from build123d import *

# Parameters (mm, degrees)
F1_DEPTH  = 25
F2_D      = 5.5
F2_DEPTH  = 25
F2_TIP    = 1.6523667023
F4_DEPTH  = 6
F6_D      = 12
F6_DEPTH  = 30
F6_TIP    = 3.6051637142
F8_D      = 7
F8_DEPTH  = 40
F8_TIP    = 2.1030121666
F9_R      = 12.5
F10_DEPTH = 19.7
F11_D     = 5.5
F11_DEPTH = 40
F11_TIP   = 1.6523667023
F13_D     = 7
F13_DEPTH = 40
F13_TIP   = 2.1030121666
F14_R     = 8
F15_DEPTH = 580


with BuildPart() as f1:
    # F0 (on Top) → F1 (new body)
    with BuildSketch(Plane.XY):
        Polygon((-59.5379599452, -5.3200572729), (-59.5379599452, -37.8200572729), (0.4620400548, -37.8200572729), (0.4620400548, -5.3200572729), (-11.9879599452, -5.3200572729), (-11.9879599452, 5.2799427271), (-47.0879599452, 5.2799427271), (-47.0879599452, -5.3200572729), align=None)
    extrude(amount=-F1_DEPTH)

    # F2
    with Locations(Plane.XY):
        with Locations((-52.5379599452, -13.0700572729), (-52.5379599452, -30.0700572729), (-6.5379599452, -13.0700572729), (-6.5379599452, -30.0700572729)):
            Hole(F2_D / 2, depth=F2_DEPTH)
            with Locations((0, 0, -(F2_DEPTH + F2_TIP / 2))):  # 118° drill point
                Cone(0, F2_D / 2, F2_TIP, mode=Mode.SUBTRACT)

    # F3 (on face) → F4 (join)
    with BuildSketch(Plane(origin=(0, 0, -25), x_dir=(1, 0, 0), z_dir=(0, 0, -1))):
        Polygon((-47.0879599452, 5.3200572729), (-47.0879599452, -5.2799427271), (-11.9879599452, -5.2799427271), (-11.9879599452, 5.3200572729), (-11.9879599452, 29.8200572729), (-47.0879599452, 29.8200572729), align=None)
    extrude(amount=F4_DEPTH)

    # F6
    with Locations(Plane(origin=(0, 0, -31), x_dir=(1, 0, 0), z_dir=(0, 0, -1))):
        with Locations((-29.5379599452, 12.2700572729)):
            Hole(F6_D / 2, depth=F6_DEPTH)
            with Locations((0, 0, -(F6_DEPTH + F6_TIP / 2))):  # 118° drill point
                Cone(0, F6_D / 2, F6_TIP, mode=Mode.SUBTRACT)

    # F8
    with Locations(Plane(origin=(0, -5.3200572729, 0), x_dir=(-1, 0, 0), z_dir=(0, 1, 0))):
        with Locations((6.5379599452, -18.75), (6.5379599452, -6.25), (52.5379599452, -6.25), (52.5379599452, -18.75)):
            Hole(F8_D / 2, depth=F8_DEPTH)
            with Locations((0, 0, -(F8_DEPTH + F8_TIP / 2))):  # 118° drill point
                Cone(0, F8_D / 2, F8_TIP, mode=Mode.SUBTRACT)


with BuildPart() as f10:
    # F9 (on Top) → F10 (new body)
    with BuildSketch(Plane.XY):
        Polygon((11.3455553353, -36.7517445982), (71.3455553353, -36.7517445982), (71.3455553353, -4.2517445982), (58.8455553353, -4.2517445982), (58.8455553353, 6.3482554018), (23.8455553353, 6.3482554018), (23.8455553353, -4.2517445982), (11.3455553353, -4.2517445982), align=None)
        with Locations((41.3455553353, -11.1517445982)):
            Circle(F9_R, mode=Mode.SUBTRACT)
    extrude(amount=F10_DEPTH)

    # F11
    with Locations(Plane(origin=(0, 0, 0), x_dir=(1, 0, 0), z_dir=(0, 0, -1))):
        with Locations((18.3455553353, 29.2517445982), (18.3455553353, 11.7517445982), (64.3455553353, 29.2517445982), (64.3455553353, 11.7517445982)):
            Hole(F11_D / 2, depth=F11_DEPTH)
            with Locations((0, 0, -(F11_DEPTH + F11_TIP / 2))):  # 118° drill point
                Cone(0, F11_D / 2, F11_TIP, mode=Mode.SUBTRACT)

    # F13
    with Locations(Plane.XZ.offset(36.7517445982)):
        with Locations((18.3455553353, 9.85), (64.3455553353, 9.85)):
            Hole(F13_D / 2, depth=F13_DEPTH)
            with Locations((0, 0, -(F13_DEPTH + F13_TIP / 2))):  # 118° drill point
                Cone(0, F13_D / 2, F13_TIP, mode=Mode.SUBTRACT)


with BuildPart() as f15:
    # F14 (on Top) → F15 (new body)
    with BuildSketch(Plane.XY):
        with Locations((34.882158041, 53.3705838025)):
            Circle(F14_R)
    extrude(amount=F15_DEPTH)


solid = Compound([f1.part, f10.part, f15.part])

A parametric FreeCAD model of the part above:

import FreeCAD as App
import Part
import Sketcher

V = App.Vector
Q = App.Units.Quantity


def add_polygon(sketch, points):
    """Adds a closed chain of lines whose ends are joined by coincident constraints."""
    first, n = sketch.GeometryCount, len(points)
    for a, b in zip(points, points[1:] + points[:1]):
        sketch.addGeometry(Part.LineSegment(App.Vector(*a, 0), App.Vector(*b, 0)), False)
    for i in range(n):
        sketch.addConstraint(Sketcher.Constraint("Coincident", first + i, 2, first + (i + 1) % n, 1))

doc = App.newDocument("Part")
params = doc.addObject("Spreadsheet::Sheet", "Params")
for row, (alias, value) in enumerate([
    ("sketch1_width", "60 mm"),
    ("sketch1_width2", "35.1 mm"),
    ("sketch1_height", "32.5 mm"),
    ("sketch1_height2", "10.6 mm"),
    ("pad1_length", "25 mm"),
    ("sketch2_diameter", "5.5 mm"),
    ("hole_diameter", "5.5 mm"),
    ("hole_depth", "25 mm"),
    ("sketch3_width", "35.1 mm"),
    ("pad2_length", "6 mm"),
    ("sketch4_diameter", "12 mm"),
    ("hole2_diameter", "12 mm"),
    ("hole2_depth", "30 mm"),
    ("sketch5_diameter", "7 mm"),
    ("hole3_diameter", "7 mm"),
    ("hole3_depth", "40 mm"),
    ("sketch6_diameter", "25 mm"),
    ("sketch6_width", "60 mm"),
    ("sketch6_width2", "35 mm"),
    ("sketch6_height", "32.5 mm"),
    ("sketch6_height2", "10.6 mm"),
    ("pad3_length", "19.7 mm"),
    ("sketch7_diameter", "5.5 mm"),
    ("hole4_diameter", "5.5 mm"),
    ("hole4_depth", "40 mm"),
    ("sketch8_diameter", "7 mm"),
    ("hole5_diameter", "7 mm"),
    ("hole5_depth", "40 mm"),
    ("sketch9_diameter", "16 mm"),
    ("pad4_length", "580 mm"),
], start=1):
    params.set(f"A{row}", alias)
    params.set(f"B{row}", "=" + value)
    params.setAlias(f"B{row}", alias)

body = doc.addObject("PartDesign::Body", "Body")

# Sketch on XY plane
sketch1 = body.newObject("Sketcher::SketchObject", "Sketch")
sketch1.AttachmentSupport = (doc.getObject("XY_Plane"), [""])
sketch1.MapMode = "FlatFace"
add_polygon(sketch1, [(-60, -5), (-60, -38), (0, -38), (0, -5), (-12, -5), (-12, 5), (-47, 5), (-47, -5)])  # lines 0-7
sketch1.addConstraint([
    Sketcher.Constraint("Vertical", 0),
    Sketcher.Constraint("Horizontal", 1),
    Sketcher.Constraint("Vertical", 2),
    Sketcher.Constraint("Horizontal", 3),
    Sketcher.Constraint("Vertical", 4),
    Sketcher.Constraint("Horizontal", 5),
    Sketcher.Constraint("Vertical", 6),
    Sketcher.Constraint("Horizontal", 7),
    Sketcher.Constraint("Horizontal", 3, 2, 6, 2),
    Sketcher.Constraint("Equal", 3, 7),
    Sketcher.Constraint("DistanceX", 1, 1, 1, 2, Q("60 mm")),
    Sketcher.Constraint("DistanceX", 5, 2, 5, 1, Q("35.1 mm")),
    Sketcher.Constraint("DistanceY", 0, 2, 0, 1, Q("32.5 mm")),
    Sketcher.Constraint("DistanceY", 4, 1, 4, 2, Q("10.6 mm")),
    Sketcher.Constraint("DistanceX", 0, 2, -1, 1, Q("59.53796 mm")),
    Sketcher.Constraint("DistanceY", 0, 2, -1, 1, Q("37.820057 mm")),
])
sketch1.setExpression("Constraints[18]", "Params.sketch1_width")
sketch1.setExpression("Constraints[19]", "Params.sketch1_width2")
sketch1.setExpression("Constraints[20]", "Params.sketch1_height")
sketch1.setExpression("Constraints[21]", "Params.sketch1_height2")
pad1 = body.newObject("PartDesign::Pad", "Pad")
pad1.Profile = sketch1
pad1.setExpression("Length", "Params.pad1_length")
pad1.Reversed = True

# Sketch on XY plane
sketch2 = body.newObject("Sketcher::SketchObject", "Sketch001")
sketch2.AttachmentSupport = (doc.getObject("XY_Plane"), [""])
sketch2.MapMode = "FlatFace"
sketch2.addGeometry([
    Part.Circle(V(-52.5, -13.1, 0), V(0, 0, 1), 2.8),
    Part.Circle(V(-52.5, -30.1, 0), V(0, 0, 1), 2.8),
    Part.Circle(V(-6.5, -13.1, 0), V(0, 0, 1), 2.8),
    Part.Circle(V(-6.5, -30.1, 0), V(0, 0, 1), 2.8),
], False)
sketch2.addConstraint([
    Sketcher.Constraint("Equal", 0, 1),
    Sketcher.Constraint("Equal", 1, 2),
    Sketcher.Constraint("Equal", 2, 3),
    Sketcher.Constraint("Horizontal", 0, 3, 2, 3),
    Sketcher.Constraint("Horizontal", 1, 3, 3, 3),
    Sketcher.Constraint("Vertical", 0, 3, 1, 3),
    Sketcher.Constraint("Vertical", 2, 3, 3, 3),
    Sketcher.Constraint("Diameter", 0, Q("5.5 mm")),
    Sketcher.Constraint("DistanceY", 1, 3, 0, 3, Q("17 mm")),
    Sketcher.Constraint("DistanceX", 0, 3, 2, 3, Q("46 mm")),
    Sketcher.Constraint("DistanceX", 0, 3, -1, 1, Q("52.53796 mm")),
    Sketcher.Constraint("DistanceY", 0, 3, -1, 1, Q("13.070057 mm")),
])
sketch2.setExpression("Constraints[7]", "Params.sketch2_diameter")
doc.recompute()
hole = body.newObject("PartDesign::Hole", "Hole")
hole.Profile = sketch2
hole.ThreadType = "None"
hole.setExpression("Diameter", "Params.hole_diameter")
hole.DepthType = "Dimension"
hole.setExpression("Depth", "Params.hole_depth")
hole.DrillPoint = "Angled"
hole.DrillPointAngle = 118

# Sketch on XY plane
sketch3 = body.newObject("Sketcher::SketchObject", "Sketch002")
sketch3.AttachmentSupport = (doc.getObject("XY_Plane"), [""])
sketch3.MapMode = "FlatFace"
sketch3.AttachmentOffset = App.Placement(V(0, 0, -25), App.Rotation())
add_polygon(sketch3, [(-47, 5), (-12, 5), (-12, -30), (-47, -30)])  # lines 0-3
sketch3.addConstraint([
    Sketcher.Constraint("Horizontal", 0),
    Sketcher.Constraint("Vertical", 1),
    Sketcher.Constraint("Horizontal", 2),
    Sketcher.Constraint("Vertical", 3),
    Sketcher.Constraint("Equal", 2, 1),
    Sketcher.Constraint("DistanceX", 0, 1, 0, 2, Q("35.1 mm")),
    Sketcher.Constraint("DistanceX", 0, 2, -1, 1, Q("11.98796 mm")),
    Sketcher.Constraint("DistanceY", -1, 1, 0, 2, Q("5.279943 mm")),
])
sketch3.setExpression("Constraints[9]", "Params.sketch3_width")
pad2 = body.newObject("PartDesign::Pad", "Pad001")
pad2.Profile = sketch3
pad2.setExpression("Length", "Params.pad2_length")
pad2.Reversed = True

# Sketch on XY plane
sketch4 = body.newObject("Sketcher::SketchObject", "Sketch003")
sketch4.AttachmentSupport = (doc.getObject("XY_Plane"), [""])
sketch4.MapMode = "FlatFace"
sketch4.AttachmentOffset = App.Placement(V(0, 0, -31), App.Rotation())
sketch4.addGeometry(Part.Circle(V(-30, -12, 0), V(0, 0, 1), 6), False)
sketch4.addConstraint([
    Sketcher.Constraint("Diameter", 0, Q("12 mm")),
    Sketcher.Constraint("DistanceX", 0, 3, -1, 1, Q("29.53796 mm")),
    Sketcher.Constraint("DistanceY", 0, 3, -1, 1, Q("12.270057 mm")),
])
sketch4.setExpression("Constraints[0]", "Params.sketch4_diameter")
doc.recompute()
hole2 = body.newObject("PartDesign::Hole", "Hole001")
hole2.Profile = sketch4
hole2.ThreadType = "None"
hole2.setExpression("Diameter", "Params.hole2_diameter")
hole2.DepthType = "Dimension"
hole2.setExpression("Depth", "Params.hole2_depth")
hole2.DrillPoint = "Angled"
hole2.DrillPointAngle = 118
hole2.Reversed = True

# Sketch on XZ plane
sketch5 = body.newObject("Sketcher::SketchObject", "Sketch004")
sketch5.AttachmentSupport = (doc.getObject("XZ_Plane"), [""])
sketch5.MapMode = "FlatFace"
sketch5.AttachmentOffset = App.Placement(V(0, 0, 5.320057), App.Rotation())
sketch5.addGeometry([
    Part.Circle(V(-6.5, -18.8, 0), V(0, 0, 1), 3.5),
    Part.Circle(V(-6.5, -6.2, 0), V(0, 0, 1), 3.5),
    Part.Circle(V(-52.5, -6.2, 0), V(0, 0, 1), 3.5),
    Part.Circle(V(-52.5, -18.8, 0), V(0, 0, 1), 3.5),
], False)
sketch5.addConstraint([
    Sketcher.Constraint("Equal", 0, 1),
    Sketcher.Constraint("Equal", 1, 2),
    Sketcher.Constraint("Equal", 2, 3),
    Sketcher.Constraint("Horizontal", 1, 3, 2, 3),
    Sketcher.Constraint("Horizontal", 0, 3, 3, 3),
    Sketcher.Constraint("Vertical", 0, 3, 1, 3),
    Sketcher.Constraint("Vertical", 2, 3, 3, 3),
    Sketcher.Constraint("Diameter", 0, Q("7 mm")),
    Sketcher.Constraint("DistanceX", 2, 3, 1, 3, Q("46 mm")),
    Sketcher.Constraint("DistanceY", 0, 3, 1, 3, Q("12.5 mm")),
    Sketcher.Constraint("DistanceY", 0, 3, -1, 1, Q("18.75 mm")),
    Sketcher.Constraint("DistanceX", 0, 3, -1, 1, Q("6.53796 mm")),
])
sketch5.setExpression("Constraints[7]", "Params.sketch5_diameter")
doc.recompute()
hole3 = body.newObject("PartDesign::Hole", "Hole002")
hole3.Profile = sketch5
hole3.ThreadType = "None"
hole3.setExpression("Diameter", "Params.hole3_diameter")
hole3.DepthType = "Dimension"
hole3.setExpression("Depth", "Params.hole3_depth")
hole3.DrillPoint = "Angled"
hole3.DrillPointAngle = 118
hole3.Reversed = True
body2 = doc.addObject("PartDesign::Body", "Body001")

# Sketch on XY plane
sketch6 = body2.newObject("Sketcher::SketchObject", "Sketch005")
sketch6.AttachmentSupport = (doc.getObject("XY_Plane001"), [""])
sketch6.MapMode = "FlatFace"
add_polygon(sketch6, [(11, -37), (71, -37), (71, -4), (59, -4), (59, 6), (24, 6), (24, -4), (11, -4)])  # lines 0-7
sketch6.addGeometry(Part.Circle(V(41, -11, 0), V(0, 0, 1), 12), False)  # 8
sketch6.addConstraint([
    Sketcher.Constraint("Horizontal", 0),
    Sketcher.Constraint("Vertical", 1),
    Sketcher.Constraint("Horizontal", 2),
    Sketcher.Constraint("Vertical", 3),
    Sketcher.Constraint("Horizontal", 4),
    Sketcher.Constraint("Vertical", 5),
    Sketcher.Constraint("Horizontal", 6),
    Sketcher.Constraint("Vertical", 7),
    Sketcher.Constraint("Horizontal", 2, 2, 5, 2),
    Sketcher.Constraint("Equal", 2, 6),
    Sketcher.Constraint("Diameter", 8, Q("25 mm")),
    Sketcher.Constraint("DistanceX", 0, 1, 0, 2, Q("60 mm")),
    Sketcher.Constraint("DistanceX", 4, 2, 4, 1, Q("35 mm")),
    Sketcher.Constraint("DistanceY", 1, 1, 1, 2, Q("32.5 mm")),
    Sketcher.Constraint("DistanceY", 3, 1, 3, 2, Q("10.6 mm")),
    Sketcher.Constraint("DistanceX", 8, 3, 0, 2, Q("30 mm")),
    Sketcher.Constraint("DistanceY", 0, 2, 8, 3, Q("25.6 mm")),
    Sketcher.Constraint("DistanceX", -1, 1, 8, 3, Q("41.345555 mm")),
    Sketcher.Constraint("DistanceY", 8, 3, -1, 1, Q("11.151745 mm")),
])
sketch6.setExpression("Constraints[18]", "Params.sketch6_diameter")
sketch6.setExpression("Constraints[19]", "Params.sketch6_width")
sketch6.setExpression("Constraints[20]", "Params.sketch6_width2")
sketch6.setExpression("Constraints[21]", "Params.sketch6_height")
sketch6.setExpression("Constraints[22]", "Params.sketch6_height2")
pad3 = body2.newObject("PartDesign::Pad", "Pad002")
pad3.Profile = sketch6
pad3.setExpression("Length", "Params.pad3_length")

# Sketch on XY plane
sketch7 = body2.newObject("Sketcher::SketchObject", "Sketch006")
sketch7.AttachmentSupport = (doc.getObject("XY_Plane001"), [""])
sketch7.MapMode = "FlatFace"
sketch7.addGeometry([
    Part.Circle(V(18.3, -29.3, 0), V(0, 0, 1), 2.8),
    Part.Circle(V(18.3, -11.8, 0), V(0, 0, 1), 2.8),
    Part.Circle(V(64.3, -29.3, 0), V(0, 0, 1), 2.8),
    Part.Circle(V(64.3, -11.8, 0), V(0, 0, 1), 2.8),
], False)
sketch7.addConstraint([
    Sketcher.Constraint("Equal", 0, 1),
    Sketcher.Constraint("Equal", 1, 2),
    Sketcher.Constraint("Equal", 2, 3),
    Sketcher.Constraint("Horizontal", 0, 3, 2, 3),
    Sketcher.Constraint("Horizontal", 1, 3, 3, 3),
    Sketcher.Constraint("Vertical", 0, 3, 1, 3),
    Sketcher.Constraint("Vertical", 2, 3, 3, 3),
    Sketcher.Constraint("Diameter", 0, Q("5.5 mm")),
    Sketcher.Constraint("DistanceX", 0, 3, 2, 3, Q("46 mm")),
    Sketcher.Constraint("DistanceY", 0, 3, 1, 3, Q("17.5 mm")),
    Sketcher.Constraint("DistanceX", -1, 1, 0, 3, Q("18.345555 mm")),
    Sketcher.Constraint("DistanceY", 0, 3, -1, 1, Q("29.251745 mm")),
])
sketch7.setExpression("Constraints[7]", "Params.sketch7_diameter")
doc.recompute()
hole4 = body2.newObject("PartDesign::Hole", "Hole003")
hole4.Profile = sketch7
hole4.ThreadType = "None"
hole4.setExpression("Diameter", "Params.hole4_diameter")
hole4.DepthType = "Dimension"
hole4.setExpression("Depth", "Params.hole4_depth")
hole4.DrillPoint = "Angled"
hole4.DrillPointAngle = 118
hole4.Reversed = True

# Sketch on XZ plane
sketch8 = body2.newObject("Sketcher::SketchObject", "Sketch007")
sketch8.AttachmentSupport = (doc.getObject("XZ_Plane001"), [""])
sketch8.MapMode = "FlatFace"
sketch8.AttachmentOffset = App.Placement(V(0, 0, 36.751745), App.Rotation())
sketch8.addGeometry([
    Part.Circle(V(18.3, 9.8, 0), V(0, 0, 1), 3.5),
    Part.Circle(V(64.3, 9.8, 0), V(0, 0, 1), 3.5),
], False)
sketch8.addConstraint([
    Sketcher.Constraint("Equal", 0, 1),
    Sketcher.Constraint("Horizontal", 0, 3, 1, 3),
    Sketcher.Constraint("Diameter", 0, Q("7 mm")),
    Sketcher.Constraint("DistanceX", 0, 3, 1, 3, Q("46 mm")),
    Sketcher.Constraint("DistanceY", -1, 1, 0, 3, Q("9.85 mm")),
    Sketcher.Constraint("DistanceX", -1, 1, 0, 3, Q("18.345555 mm")),
])
sketch8.setExpression("Constraints[2]", "Params.sketch8_diameter")
doc.recompute()
hole5 = body2.newObject("PartDesign::Hole", "Hole004")
hole5.Profile = sketch8
hole5.ThreadType = "None"
hole5.setExpression("Diameter", "Params.hole5_diameter")
hole5.DepthType = "Dimension"
hole5.setExpression("Depth", "Params.hole5_depth")
hole5.DrillPoint = "Angled"
hole5.DrillPointAngle = 118
body3 = doc.addObject("PartDesign::Body", "Body002")

# Sketch on XY plane
sketch9 = body3.newObject("Sketcher::SketchObject", "Sketch008")
sketch9.AttachmentSupport = (doc.getObject("XY_Plane002"), [""])
sketch9.MapMode = "FlatFace"
sketch9.addGeometry(Part.Circle(V(35, 53, 0), V(0, 0, 1), 8), False)
sketch9.addConstraint([
    Sketcher.Constraint("Diameter", 0, Q("16 mm")),
    Sketcher.Constraint("DistanceX", -1, 1, 0, 3, Q("34.882158 mm")),
    Sketcher.Constraint("DistanceY", -1, 1, 0, 3, Q("53.370584 mm")),
])
sketch9.setExpression("Constraints[0]", "Params.sketch9_diameter")
pad4 = body3.newObject("PartDesign::Pad", "Pad003")
pad4.Profile = sketch9
pad4.setExpression("Length", "Params.pad4_length")

doc.recompute()
